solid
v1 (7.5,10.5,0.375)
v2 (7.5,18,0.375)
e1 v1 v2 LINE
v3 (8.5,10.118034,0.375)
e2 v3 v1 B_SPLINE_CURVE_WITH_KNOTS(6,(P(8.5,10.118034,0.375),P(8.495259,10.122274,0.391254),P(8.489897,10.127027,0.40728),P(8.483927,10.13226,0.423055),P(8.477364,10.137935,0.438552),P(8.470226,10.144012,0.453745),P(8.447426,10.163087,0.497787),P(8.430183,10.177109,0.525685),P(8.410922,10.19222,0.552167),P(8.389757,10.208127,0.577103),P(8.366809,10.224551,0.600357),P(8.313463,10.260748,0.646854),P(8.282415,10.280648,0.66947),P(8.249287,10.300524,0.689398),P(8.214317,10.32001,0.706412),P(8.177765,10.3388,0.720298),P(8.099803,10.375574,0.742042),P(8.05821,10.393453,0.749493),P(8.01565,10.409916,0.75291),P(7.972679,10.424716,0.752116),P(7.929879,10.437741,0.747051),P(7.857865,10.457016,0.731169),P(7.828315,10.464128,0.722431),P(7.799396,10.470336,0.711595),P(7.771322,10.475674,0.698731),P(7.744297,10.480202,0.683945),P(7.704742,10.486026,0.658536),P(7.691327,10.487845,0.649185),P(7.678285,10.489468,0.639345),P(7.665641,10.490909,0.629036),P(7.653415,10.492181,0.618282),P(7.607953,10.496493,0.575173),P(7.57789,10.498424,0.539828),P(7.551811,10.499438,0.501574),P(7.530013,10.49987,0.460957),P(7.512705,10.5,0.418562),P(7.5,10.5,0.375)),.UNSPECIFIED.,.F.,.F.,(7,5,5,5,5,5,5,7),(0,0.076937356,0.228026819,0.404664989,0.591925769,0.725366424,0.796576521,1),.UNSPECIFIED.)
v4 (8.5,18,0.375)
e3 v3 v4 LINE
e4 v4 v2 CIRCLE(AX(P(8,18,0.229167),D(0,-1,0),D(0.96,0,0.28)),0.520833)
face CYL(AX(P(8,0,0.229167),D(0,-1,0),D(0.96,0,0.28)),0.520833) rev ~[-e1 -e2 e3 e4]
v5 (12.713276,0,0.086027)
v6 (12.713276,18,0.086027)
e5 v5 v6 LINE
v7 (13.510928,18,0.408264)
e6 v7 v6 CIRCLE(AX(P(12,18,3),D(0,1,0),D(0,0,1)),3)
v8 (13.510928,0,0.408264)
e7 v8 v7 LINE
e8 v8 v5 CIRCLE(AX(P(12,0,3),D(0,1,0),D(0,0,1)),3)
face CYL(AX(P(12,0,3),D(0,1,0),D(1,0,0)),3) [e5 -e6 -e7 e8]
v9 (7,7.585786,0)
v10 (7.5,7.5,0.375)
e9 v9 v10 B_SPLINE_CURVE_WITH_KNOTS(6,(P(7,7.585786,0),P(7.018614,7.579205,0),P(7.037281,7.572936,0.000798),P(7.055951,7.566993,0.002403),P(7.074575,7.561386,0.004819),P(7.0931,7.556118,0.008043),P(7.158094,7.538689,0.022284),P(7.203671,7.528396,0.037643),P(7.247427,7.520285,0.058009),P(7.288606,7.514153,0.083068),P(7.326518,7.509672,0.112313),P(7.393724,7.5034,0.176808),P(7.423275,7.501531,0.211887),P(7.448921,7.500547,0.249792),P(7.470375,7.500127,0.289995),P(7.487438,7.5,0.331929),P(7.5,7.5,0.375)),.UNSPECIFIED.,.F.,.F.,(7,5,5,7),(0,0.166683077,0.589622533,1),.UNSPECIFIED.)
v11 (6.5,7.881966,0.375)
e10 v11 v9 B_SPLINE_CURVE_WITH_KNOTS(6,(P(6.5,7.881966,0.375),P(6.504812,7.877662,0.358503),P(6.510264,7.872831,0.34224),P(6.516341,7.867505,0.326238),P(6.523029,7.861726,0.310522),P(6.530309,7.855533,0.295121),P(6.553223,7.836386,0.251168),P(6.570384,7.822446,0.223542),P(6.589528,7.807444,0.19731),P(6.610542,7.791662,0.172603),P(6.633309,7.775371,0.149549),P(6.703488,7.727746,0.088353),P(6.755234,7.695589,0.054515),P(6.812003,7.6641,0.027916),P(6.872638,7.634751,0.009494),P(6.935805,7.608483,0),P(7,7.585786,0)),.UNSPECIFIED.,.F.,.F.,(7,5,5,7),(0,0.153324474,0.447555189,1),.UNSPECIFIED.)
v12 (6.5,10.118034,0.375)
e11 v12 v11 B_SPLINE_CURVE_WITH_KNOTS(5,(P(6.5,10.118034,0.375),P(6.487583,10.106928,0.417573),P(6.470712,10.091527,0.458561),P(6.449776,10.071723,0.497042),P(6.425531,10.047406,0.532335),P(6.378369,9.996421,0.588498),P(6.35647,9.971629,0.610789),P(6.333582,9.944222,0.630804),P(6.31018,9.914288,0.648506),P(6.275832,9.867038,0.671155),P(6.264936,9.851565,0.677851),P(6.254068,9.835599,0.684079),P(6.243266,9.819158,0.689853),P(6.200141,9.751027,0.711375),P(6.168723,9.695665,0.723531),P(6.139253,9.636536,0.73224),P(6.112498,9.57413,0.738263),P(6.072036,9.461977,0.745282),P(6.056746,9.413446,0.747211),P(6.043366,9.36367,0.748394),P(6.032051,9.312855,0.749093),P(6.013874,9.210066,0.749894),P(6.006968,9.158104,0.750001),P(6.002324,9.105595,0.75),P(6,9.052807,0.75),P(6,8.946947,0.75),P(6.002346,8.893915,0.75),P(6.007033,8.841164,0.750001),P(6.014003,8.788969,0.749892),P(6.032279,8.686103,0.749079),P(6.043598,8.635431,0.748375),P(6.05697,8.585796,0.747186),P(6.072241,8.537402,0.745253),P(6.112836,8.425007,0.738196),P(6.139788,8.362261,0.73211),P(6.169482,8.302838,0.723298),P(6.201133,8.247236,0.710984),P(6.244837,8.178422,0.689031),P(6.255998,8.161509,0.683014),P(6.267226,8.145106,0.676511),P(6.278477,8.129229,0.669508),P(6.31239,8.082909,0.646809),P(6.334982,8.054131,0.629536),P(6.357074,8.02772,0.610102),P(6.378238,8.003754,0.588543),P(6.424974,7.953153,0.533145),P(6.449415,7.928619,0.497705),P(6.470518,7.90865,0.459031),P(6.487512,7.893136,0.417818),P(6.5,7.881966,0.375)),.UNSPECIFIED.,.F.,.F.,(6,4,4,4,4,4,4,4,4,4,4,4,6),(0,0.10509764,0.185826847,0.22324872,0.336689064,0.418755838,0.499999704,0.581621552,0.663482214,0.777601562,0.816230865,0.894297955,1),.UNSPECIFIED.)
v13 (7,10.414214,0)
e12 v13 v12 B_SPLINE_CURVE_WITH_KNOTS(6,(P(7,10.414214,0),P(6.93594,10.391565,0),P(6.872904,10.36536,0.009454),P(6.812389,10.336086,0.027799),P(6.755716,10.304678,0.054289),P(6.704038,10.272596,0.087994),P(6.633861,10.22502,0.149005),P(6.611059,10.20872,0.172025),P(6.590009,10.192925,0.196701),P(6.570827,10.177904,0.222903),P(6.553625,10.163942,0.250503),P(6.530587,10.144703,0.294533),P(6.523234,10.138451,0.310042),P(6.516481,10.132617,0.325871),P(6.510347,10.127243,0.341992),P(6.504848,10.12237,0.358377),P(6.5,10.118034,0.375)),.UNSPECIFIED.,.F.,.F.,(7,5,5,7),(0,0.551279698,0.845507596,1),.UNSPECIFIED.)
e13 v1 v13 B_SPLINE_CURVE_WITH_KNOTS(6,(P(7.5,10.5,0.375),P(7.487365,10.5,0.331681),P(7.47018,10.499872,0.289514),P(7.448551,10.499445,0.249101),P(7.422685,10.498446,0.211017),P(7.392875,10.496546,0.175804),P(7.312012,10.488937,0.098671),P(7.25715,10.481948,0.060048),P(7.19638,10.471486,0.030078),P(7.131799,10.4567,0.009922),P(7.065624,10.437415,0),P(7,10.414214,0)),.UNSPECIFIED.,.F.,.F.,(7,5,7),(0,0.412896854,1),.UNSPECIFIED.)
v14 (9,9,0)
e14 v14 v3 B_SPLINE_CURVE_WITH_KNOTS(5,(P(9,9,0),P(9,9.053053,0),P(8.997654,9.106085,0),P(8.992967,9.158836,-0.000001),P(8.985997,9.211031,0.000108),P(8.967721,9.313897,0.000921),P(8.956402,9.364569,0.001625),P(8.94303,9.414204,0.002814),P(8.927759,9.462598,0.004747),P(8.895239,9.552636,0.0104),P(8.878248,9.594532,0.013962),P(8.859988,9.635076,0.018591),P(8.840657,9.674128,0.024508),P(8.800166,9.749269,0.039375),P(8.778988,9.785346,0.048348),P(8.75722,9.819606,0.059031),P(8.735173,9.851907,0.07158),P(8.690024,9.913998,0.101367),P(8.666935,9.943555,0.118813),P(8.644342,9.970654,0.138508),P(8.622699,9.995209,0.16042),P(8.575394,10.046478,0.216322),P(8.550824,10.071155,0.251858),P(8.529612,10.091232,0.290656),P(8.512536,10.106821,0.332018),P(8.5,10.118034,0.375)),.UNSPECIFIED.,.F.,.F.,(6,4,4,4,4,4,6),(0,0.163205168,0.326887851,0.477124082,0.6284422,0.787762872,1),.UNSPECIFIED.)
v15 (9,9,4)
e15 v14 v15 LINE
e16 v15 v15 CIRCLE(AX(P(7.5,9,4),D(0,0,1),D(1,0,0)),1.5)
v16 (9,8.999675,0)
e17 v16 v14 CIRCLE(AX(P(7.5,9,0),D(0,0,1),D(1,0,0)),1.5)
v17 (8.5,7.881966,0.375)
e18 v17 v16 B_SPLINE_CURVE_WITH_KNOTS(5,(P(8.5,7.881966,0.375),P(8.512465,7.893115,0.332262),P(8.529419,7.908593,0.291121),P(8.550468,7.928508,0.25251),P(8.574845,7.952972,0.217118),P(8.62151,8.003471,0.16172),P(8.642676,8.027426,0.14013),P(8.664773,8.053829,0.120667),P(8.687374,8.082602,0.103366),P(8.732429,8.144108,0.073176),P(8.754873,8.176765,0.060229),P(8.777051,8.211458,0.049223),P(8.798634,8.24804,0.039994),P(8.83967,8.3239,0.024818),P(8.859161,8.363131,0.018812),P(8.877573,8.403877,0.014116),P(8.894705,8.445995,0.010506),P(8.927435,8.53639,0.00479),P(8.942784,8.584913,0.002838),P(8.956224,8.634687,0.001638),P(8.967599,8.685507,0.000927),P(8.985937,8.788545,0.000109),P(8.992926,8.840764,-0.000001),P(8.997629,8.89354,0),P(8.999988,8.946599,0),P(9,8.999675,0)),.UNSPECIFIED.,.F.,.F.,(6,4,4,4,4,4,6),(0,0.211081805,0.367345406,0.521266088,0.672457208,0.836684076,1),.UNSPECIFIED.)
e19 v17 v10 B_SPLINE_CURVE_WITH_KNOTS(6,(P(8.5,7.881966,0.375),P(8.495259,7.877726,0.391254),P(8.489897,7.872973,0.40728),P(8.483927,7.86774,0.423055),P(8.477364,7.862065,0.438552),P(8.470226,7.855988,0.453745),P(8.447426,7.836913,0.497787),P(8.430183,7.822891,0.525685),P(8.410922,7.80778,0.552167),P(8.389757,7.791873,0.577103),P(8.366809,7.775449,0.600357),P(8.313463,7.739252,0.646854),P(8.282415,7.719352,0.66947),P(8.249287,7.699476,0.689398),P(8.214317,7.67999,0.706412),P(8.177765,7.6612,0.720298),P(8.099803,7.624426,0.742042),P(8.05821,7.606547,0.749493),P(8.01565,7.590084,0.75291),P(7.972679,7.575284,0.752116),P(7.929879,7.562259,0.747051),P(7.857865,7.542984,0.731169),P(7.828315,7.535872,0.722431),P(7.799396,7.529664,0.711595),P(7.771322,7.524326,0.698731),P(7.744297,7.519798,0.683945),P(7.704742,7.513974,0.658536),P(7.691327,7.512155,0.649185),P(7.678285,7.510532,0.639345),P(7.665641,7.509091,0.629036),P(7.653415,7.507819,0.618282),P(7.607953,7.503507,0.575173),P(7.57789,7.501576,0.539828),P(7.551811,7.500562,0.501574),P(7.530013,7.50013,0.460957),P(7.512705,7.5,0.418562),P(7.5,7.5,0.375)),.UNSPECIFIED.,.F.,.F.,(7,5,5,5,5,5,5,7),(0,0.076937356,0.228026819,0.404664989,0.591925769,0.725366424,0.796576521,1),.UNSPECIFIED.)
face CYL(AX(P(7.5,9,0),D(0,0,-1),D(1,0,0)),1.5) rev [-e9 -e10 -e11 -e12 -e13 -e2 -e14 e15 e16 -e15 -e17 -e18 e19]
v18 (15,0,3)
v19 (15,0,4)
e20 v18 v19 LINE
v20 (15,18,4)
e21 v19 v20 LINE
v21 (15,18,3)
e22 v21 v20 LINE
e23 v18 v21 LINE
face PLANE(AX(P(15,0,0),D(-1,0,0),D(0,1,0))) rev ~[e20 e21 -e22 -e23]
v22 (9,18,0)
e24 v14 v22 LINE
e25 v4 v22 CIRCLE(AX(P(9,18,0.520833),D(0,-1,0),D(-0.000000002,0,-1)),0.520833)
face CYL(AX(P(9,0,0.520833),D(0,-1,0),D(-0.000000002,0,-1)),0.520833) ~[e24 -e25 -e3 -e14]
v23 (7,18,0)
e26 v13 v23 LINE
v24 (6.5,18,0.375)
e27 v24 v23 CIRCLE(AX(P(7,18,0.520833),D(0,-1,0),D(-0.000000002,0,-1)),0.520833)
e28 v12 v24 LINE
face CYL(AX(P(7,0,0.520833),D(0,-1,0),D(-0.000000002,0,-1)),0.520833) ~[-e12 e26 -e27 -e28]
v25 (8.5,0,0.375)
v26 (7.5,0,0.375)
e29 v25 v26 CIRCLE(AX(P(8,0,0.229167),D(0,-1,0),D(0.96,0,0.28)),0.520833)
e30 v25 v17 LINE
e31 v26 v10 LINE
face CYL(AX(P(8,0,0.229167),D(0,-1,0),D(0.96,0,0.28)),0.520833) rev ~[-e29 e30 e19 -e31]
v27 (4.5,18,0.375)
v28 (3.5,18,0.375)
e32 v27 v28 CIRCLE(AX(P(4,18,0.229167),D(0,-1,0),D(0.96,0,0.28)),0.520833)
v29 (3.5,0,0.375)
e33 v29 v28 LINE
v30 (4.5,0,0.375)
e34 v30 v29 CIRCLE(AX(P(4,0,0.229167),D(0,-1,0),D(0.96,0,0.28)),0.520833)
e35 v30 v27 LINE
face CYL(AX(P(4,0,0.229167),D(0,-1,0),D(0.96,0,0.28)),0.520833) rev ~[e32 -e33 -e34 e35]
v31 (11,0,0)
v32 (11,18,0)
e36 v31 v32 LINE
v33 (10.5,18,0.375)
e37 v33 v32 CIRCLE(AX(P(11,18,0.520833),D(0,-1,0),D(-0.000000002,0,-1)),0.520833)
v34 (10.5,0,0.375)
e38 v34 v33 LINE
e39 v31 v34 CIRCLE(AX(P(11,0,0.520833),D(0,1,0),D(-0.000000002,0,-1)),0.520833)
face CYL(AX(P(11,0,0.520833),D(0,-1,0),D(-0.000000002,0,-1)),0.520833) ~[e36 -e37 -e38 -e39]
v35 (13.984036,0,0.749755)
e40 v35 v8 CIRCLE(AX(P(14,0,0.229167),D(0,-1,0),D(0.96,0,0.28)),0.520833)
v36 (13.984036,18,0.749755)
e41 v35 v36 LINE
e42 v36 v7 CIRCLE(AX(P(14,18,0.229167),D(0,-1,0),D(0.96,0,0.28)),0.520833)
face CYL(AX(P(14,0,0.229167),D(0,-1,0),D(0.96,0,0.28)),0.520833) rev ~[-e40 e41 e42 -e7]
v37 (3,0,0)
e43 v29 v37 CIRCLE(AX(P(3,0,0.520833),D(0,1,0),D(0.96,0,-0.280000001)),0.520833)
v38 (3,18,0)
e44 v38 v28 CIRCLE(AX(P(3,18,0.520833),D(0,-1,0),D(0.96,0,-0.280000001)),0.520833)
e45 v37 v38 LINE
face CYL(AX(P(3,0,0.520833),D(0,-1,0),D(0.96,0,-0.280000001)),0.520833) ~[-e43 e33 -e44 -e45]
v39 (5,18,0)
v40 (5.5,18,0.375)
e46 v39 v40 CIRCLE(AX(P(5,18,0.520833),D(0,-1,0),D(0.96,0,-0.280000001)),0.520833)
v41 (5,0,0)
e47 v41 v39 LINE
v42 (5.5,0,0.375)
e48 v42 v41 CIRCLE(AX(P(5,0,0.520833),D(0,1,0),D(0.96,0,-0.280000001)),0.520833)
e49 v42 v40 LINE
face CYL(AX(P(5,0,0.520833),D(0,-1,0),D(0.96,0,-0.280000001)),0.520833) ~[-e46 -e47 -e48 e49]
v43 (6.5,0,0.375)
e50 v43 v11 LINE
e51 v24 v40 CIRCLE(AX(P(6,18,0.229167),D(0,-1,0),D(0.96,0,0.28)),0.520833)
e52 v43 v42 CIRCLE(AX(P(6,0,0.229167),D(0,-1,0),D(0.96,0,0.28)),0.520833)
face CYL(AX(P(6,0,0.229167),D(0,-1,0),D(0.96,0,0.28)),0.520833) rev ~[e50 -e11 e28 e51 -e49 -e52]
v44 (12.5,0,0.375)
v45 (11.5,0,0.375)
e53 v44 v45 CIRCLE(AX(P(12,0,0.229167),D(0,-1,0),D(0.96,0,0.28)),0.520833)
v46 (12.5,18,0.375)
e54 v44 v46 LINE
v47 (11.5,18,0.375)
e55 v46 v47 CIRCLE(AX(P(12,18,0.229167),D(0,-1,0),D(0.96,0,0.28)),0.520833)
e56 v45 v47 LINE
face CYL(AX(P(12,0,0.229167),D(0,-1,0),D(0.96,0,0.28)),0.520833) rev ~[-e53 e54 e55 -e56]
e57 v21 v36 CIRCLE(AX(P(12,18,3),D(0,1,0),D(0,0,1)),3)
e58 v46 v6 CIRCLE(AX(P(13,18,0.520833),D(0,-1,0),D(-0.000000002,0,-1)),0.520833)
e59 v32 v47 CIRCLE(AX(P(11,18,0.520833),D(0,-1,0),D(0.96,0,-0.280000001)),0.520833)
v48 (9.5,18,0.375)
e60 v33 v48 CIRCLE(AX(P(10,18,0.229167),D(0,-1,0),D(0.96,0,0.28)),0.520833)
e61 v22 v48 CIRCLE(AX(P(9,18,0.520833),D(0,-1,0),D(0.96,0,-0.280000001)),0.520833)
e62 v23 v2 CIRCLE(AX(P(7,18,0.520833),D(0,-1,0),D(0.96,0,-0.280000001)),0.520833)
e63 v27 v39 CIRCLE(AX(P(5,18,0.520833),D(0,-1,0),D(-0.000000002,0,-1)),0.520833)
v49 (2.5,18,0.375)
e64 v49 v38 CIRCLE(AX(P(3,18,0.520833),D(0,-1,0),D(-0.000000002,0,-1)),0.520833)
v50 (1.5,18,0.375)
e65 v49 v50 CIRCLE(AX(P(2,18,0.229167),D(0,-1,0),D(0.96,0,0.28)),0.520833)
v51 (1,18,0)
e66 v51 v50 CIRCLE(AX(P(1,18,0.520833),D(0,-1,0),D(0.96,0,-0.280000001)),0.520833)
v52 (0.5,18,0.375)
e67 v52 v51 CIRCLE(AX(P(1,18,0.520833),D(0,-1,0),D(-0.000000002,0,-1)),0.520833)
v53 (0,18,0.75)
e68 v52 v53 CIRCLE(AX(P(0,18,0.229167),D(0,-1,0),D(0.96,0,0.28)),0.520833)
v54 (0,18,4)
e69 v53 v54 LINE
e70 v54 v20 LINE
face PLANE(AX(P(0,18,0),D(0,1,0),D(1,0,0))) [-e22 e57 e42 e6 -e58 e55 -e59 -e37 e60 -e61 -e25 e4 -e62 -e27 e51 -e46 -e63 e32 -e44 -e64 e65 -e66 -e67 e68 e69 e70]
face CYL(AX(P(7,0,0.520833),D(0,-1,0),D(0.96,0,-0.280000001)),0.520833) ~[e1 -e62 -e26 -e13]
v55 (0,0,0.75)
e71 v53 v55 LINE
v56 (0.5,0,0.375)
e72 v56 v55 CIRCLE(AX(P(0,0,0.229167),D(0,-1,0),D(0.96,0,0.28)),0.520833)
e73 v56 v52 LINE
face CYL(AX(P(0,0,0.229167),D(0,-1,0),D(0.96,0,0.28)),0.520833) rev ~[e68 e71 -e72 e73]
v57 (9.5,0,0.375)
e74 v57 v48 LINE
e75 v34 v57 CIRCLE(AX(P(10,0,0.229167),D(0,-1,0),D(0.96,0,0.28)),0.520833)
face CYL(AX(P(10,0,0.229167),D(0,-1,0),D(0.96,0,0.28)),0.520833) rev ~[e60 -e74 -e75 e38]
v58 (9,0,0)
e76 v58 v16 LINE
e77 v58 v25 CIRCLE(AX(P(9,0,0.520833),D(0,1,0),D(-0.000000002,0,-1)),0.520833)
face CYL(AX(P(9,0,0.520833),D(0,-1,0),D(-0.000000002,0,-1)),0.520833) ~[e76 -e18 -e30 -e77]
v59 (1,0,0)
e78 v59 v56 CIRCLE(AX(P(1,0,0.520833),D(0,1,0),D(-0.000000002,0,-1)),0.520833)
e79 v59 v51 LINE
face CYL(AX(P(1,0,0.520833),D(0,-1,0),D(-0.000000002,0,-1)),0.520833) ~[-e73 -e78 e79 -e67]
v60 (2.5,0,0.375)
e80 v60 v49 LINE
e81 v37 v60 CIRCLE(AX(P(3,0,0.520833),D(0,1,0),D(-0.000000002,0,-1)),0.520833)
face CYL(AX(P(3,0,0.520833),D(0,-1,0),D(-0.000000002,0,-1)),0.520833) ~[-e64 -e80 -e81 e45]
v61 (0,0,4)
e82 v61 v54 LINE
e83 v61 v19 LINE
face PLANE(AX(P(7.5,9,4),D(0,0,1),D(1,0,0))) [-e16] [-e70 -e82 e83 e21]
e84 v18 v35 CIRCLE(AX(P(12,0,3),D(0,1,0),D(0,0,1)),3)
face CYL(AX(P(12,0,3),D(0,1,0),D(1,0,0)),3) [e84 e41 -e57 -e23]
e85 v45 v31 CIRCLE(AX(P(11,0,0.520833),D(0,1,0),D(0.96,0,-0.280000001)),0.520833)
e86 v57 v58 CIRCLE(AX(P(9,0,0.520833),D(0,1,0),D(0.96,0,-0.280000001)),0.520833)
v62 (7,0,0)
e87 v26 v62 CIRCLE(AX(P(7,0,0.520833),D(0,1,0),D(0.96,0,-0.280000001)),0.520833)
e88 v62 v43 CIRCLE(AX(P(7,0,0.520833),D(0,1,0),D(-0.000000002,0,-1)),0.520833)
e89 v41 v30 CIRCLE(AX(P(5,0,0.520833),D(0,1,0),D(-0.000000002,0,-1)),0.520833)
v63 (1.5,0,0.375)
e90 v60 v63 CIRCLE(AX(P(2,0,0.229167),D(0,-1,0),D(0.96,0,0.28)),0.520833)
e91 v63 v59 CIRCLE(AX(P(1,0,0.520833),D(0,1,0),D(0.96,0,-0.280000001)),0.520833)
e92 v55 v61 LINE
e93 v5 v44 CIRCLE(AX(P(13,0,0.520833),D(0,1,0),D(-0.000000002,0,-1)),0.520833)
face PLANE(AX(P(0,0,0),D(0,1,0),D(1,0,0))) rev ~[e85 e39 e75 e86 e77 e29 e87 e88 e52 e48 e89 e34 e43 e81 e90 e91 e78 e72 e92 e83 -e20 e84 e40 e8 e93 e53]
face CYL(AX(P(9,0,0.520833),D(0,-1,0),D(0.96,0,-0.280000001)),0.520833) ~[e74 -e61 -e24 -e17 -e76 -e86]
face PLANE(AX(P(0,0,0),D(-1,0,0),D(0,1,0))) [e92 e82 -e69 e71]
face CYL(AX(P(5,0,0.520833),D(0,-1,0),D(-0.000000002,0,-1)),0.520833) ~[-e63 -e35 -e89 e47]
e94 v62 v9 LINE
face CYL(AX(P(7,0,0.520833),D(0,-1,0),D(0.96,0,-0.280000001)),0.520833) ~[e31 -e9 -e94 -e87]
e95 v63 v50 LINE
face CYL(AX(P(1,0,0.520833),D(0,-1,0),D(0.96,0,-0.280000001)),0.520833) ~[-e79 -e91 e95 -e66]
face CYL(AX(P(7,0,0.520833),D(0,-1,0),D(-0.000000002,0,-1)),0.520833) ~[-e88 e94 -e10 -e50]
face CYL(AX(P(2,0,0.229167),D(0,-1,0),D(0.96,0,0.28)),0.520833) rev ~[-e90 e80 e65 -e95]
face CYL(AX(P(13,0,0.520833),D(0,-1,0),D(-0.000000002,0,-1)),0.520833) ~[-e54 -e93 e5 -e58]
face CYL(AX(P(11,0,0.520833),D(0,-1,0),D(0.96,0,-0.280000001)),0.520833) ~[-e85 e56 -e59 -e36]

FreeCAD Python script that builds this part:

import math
import FreeCAD as App
import Part
import Sketcher
Q = App.Units.Quantity


def edges_at(feature, points):
    """Names of the edges that pass closest to the given points."""
    edges = feature.Shape.Edges
    near = lambda p: min(range(len(edges)), key=lambda i: edges[i].distToShape(Part.Vertex(*p))[0])
    return sorted({f"Edge{near(p) + 1}" for p in points})

doc = App.newDocument("Part")
body = doc.addObject("PartDesign::Body", "Body")

sketch1 = doc.addObject("Sketcher::SketchObject", "Sketch")
body.addObject(sketch1)
sketch1.AttachmentSupport = (doc.XY_Plane, [""])
sketch1.MapMode = "FlatFace"
sketch1.addGeometry(Part.LineSegment(App.Vector(0, 18, 0), App.Vector(0, 0, 0)), False)
sketch1.addGeometry(Part.LineSegment(App.Vector(0, 0, 0), App.Vector(15, 0, 0)), False)
sketch1.addGeometry(Part.LineSegment(App.Vector(15, 0, 0), App.Vector(15, 18, 0)), False)
sketch1.addGeometry(Part.LineSegment(App.Vector(15, 18, 0), App.Vector(0, 18, 0)), False)
sketch1.addGeometry(Part.Circle(App.Vector(7.5, 9, 0), App.Vector(0, 0, 1), 1.5), False)
sketch1.addConstraint(Sketcher.Constraint("Coincident", 0, 2, 1, 1))
sketch1.addConstraint(Sketcher.Constraint("Coincident", 1, 2, 2, 1))
sketch1.addConstraint(Sketcher.Constraint("Coincident", 2, 2, 3, 1))
sketch1.addConstraint(Sketcher.Constraint("Coincident", 3, 2, 0, 1))
sketch1.addConstraint(Sketcher.Constraint("Vertical", 0))
sketch1.addConstraint(Sketcher.Constraint("Horizontal", 1))
sketch1.addConstraint(Sketcher.Constraint("Vertical", 2))
sketch1.addConstraint(Sketcher.Constraint("Horizontal", 3))
sketch1.addConstraint(Sketcher.Constraint("Coincident", 0, 2, -1, 1))
sketch1.addConstraint(Sketcher.Constraint("Diameter", 4, Q("3 mm")))
sketch1.addConstraint(Sketcher.Constraint("DistanceX", 1, 1, 1, 2, Q("15 mm")))
sketch1.addConstraint(Sketcher.Constraint("DistanceY", 0, 2, 0, 1, Q("18 mm")))
sketch1.addConstraint(Sketcher.Constraint("DistanceY", -1, 1, 4, 3, Q("9 mm")))
sketch1.addConstraint(Sketcher.Constraint("DistanceX", -1, 1, 4, 3, Q("7.5 mm")))
pad1 = doc.addObject("PartDesign::Pad", "Pad")
body.addObject(pad1)
pad1.Profile = sketch1
pad1.Length = 4
doc.recompute()

fillet = doc.addObject("PartDesign::Fillet", "Fillet")
body.addObject(fillet)
fillet.Base = (pad1, edges_at(pad1, [(15, 9, 0)]))
fillet.Radius = 3

sketch2 = doc.addObject("Sketcher::SketchObject", "Sketch001")
body.addObject(sketch2)
sketch2.AttachmentSupport = (doc.XZ_Plane, [""])
sketch2.MapMode = "FlatFace"
sketch2.addGeometry(Part.LineSegment(App.Vector(1, 0, 0), App.Vector(-1, 0, 0)), False)
sketch2.addGeometry(Part.ArcOfCircle(Part.Circle(App.Vector(-1, 0.520833, 0), App.Vector(0, 0, 1), 0.520833), math.radians(-90), math.radians(-16.260205)), False)
sketch2.addGeometry(Part.ArcOfCircle(Part.Circle(App.Vector(0, 0.229167, 0), App.Vector(0, 0, 1), 0.520833), math.radians(16.260205), math.radians(163.739795)), False)
sketch2.addGeometry(Part.ArcOfCircle(Part.Circle(App.Vector(1, 0.520833, 0), App.Vector(0, 0, 1), 0.520833), math.radians(-163.739795), math.radians(-90)), False)
sketch2.addConstraint(Sketcher.Constraint("Tangent", 0, 2, 1, 1))
sketch2.addConstraint(Sketcher.Constraint("Tangent", 1, 2, 2, 2))
sketch2.addConstraint(Sketcher.Constraint("Tangent", 2, 1, 3, 1))
sketch2.addConstraint(Sketcher.Constraint("Tangent", 3, 2, 0, 1))
sketch2.addConstraint(Sketcher.Constraint("Horizontal", 0))
sketch2.addConstraint(Sketcher.Constraint("Equal", 1, 2))
sketch2.addConstraint(Sketcher.Constraint("Equal", 2, 3))
sketch2.addConstraint(Sketcher.Constraint("Symmetric", 0, 2, 3, 2, -1, 1))
sketch2.addConstraint(Sketcher.Constraint("DistanceX", 0, 2, 0, 1, Q("2 mm")))
sketch2.addConstraint(Sketcher.Constraint("DistanceY", -1, 1, 1, 2, Q("0.375 mm")))
pocket1 = doc.addObject("PartDesign::Pocket", "Pocket")
body.addObject(pocket1)
pocket1.Profile = sketch2
pocket1.Type = "ThroughAll"
doc.recompute()

linearpattern = doc.addObject("PartDesign::LinearPattern", "LinearPattern")
body.addObject(linearpattern)
linearpattern.Originals = [pocket1]
linearpattern.Direction = (doc.X_Axis, [""])
linearpattern.Mode = "offset"
linearpattern.Offset = 2
linearpattern.Occurrences = 10
body.Tip = linearpattern

doc.recompute()
